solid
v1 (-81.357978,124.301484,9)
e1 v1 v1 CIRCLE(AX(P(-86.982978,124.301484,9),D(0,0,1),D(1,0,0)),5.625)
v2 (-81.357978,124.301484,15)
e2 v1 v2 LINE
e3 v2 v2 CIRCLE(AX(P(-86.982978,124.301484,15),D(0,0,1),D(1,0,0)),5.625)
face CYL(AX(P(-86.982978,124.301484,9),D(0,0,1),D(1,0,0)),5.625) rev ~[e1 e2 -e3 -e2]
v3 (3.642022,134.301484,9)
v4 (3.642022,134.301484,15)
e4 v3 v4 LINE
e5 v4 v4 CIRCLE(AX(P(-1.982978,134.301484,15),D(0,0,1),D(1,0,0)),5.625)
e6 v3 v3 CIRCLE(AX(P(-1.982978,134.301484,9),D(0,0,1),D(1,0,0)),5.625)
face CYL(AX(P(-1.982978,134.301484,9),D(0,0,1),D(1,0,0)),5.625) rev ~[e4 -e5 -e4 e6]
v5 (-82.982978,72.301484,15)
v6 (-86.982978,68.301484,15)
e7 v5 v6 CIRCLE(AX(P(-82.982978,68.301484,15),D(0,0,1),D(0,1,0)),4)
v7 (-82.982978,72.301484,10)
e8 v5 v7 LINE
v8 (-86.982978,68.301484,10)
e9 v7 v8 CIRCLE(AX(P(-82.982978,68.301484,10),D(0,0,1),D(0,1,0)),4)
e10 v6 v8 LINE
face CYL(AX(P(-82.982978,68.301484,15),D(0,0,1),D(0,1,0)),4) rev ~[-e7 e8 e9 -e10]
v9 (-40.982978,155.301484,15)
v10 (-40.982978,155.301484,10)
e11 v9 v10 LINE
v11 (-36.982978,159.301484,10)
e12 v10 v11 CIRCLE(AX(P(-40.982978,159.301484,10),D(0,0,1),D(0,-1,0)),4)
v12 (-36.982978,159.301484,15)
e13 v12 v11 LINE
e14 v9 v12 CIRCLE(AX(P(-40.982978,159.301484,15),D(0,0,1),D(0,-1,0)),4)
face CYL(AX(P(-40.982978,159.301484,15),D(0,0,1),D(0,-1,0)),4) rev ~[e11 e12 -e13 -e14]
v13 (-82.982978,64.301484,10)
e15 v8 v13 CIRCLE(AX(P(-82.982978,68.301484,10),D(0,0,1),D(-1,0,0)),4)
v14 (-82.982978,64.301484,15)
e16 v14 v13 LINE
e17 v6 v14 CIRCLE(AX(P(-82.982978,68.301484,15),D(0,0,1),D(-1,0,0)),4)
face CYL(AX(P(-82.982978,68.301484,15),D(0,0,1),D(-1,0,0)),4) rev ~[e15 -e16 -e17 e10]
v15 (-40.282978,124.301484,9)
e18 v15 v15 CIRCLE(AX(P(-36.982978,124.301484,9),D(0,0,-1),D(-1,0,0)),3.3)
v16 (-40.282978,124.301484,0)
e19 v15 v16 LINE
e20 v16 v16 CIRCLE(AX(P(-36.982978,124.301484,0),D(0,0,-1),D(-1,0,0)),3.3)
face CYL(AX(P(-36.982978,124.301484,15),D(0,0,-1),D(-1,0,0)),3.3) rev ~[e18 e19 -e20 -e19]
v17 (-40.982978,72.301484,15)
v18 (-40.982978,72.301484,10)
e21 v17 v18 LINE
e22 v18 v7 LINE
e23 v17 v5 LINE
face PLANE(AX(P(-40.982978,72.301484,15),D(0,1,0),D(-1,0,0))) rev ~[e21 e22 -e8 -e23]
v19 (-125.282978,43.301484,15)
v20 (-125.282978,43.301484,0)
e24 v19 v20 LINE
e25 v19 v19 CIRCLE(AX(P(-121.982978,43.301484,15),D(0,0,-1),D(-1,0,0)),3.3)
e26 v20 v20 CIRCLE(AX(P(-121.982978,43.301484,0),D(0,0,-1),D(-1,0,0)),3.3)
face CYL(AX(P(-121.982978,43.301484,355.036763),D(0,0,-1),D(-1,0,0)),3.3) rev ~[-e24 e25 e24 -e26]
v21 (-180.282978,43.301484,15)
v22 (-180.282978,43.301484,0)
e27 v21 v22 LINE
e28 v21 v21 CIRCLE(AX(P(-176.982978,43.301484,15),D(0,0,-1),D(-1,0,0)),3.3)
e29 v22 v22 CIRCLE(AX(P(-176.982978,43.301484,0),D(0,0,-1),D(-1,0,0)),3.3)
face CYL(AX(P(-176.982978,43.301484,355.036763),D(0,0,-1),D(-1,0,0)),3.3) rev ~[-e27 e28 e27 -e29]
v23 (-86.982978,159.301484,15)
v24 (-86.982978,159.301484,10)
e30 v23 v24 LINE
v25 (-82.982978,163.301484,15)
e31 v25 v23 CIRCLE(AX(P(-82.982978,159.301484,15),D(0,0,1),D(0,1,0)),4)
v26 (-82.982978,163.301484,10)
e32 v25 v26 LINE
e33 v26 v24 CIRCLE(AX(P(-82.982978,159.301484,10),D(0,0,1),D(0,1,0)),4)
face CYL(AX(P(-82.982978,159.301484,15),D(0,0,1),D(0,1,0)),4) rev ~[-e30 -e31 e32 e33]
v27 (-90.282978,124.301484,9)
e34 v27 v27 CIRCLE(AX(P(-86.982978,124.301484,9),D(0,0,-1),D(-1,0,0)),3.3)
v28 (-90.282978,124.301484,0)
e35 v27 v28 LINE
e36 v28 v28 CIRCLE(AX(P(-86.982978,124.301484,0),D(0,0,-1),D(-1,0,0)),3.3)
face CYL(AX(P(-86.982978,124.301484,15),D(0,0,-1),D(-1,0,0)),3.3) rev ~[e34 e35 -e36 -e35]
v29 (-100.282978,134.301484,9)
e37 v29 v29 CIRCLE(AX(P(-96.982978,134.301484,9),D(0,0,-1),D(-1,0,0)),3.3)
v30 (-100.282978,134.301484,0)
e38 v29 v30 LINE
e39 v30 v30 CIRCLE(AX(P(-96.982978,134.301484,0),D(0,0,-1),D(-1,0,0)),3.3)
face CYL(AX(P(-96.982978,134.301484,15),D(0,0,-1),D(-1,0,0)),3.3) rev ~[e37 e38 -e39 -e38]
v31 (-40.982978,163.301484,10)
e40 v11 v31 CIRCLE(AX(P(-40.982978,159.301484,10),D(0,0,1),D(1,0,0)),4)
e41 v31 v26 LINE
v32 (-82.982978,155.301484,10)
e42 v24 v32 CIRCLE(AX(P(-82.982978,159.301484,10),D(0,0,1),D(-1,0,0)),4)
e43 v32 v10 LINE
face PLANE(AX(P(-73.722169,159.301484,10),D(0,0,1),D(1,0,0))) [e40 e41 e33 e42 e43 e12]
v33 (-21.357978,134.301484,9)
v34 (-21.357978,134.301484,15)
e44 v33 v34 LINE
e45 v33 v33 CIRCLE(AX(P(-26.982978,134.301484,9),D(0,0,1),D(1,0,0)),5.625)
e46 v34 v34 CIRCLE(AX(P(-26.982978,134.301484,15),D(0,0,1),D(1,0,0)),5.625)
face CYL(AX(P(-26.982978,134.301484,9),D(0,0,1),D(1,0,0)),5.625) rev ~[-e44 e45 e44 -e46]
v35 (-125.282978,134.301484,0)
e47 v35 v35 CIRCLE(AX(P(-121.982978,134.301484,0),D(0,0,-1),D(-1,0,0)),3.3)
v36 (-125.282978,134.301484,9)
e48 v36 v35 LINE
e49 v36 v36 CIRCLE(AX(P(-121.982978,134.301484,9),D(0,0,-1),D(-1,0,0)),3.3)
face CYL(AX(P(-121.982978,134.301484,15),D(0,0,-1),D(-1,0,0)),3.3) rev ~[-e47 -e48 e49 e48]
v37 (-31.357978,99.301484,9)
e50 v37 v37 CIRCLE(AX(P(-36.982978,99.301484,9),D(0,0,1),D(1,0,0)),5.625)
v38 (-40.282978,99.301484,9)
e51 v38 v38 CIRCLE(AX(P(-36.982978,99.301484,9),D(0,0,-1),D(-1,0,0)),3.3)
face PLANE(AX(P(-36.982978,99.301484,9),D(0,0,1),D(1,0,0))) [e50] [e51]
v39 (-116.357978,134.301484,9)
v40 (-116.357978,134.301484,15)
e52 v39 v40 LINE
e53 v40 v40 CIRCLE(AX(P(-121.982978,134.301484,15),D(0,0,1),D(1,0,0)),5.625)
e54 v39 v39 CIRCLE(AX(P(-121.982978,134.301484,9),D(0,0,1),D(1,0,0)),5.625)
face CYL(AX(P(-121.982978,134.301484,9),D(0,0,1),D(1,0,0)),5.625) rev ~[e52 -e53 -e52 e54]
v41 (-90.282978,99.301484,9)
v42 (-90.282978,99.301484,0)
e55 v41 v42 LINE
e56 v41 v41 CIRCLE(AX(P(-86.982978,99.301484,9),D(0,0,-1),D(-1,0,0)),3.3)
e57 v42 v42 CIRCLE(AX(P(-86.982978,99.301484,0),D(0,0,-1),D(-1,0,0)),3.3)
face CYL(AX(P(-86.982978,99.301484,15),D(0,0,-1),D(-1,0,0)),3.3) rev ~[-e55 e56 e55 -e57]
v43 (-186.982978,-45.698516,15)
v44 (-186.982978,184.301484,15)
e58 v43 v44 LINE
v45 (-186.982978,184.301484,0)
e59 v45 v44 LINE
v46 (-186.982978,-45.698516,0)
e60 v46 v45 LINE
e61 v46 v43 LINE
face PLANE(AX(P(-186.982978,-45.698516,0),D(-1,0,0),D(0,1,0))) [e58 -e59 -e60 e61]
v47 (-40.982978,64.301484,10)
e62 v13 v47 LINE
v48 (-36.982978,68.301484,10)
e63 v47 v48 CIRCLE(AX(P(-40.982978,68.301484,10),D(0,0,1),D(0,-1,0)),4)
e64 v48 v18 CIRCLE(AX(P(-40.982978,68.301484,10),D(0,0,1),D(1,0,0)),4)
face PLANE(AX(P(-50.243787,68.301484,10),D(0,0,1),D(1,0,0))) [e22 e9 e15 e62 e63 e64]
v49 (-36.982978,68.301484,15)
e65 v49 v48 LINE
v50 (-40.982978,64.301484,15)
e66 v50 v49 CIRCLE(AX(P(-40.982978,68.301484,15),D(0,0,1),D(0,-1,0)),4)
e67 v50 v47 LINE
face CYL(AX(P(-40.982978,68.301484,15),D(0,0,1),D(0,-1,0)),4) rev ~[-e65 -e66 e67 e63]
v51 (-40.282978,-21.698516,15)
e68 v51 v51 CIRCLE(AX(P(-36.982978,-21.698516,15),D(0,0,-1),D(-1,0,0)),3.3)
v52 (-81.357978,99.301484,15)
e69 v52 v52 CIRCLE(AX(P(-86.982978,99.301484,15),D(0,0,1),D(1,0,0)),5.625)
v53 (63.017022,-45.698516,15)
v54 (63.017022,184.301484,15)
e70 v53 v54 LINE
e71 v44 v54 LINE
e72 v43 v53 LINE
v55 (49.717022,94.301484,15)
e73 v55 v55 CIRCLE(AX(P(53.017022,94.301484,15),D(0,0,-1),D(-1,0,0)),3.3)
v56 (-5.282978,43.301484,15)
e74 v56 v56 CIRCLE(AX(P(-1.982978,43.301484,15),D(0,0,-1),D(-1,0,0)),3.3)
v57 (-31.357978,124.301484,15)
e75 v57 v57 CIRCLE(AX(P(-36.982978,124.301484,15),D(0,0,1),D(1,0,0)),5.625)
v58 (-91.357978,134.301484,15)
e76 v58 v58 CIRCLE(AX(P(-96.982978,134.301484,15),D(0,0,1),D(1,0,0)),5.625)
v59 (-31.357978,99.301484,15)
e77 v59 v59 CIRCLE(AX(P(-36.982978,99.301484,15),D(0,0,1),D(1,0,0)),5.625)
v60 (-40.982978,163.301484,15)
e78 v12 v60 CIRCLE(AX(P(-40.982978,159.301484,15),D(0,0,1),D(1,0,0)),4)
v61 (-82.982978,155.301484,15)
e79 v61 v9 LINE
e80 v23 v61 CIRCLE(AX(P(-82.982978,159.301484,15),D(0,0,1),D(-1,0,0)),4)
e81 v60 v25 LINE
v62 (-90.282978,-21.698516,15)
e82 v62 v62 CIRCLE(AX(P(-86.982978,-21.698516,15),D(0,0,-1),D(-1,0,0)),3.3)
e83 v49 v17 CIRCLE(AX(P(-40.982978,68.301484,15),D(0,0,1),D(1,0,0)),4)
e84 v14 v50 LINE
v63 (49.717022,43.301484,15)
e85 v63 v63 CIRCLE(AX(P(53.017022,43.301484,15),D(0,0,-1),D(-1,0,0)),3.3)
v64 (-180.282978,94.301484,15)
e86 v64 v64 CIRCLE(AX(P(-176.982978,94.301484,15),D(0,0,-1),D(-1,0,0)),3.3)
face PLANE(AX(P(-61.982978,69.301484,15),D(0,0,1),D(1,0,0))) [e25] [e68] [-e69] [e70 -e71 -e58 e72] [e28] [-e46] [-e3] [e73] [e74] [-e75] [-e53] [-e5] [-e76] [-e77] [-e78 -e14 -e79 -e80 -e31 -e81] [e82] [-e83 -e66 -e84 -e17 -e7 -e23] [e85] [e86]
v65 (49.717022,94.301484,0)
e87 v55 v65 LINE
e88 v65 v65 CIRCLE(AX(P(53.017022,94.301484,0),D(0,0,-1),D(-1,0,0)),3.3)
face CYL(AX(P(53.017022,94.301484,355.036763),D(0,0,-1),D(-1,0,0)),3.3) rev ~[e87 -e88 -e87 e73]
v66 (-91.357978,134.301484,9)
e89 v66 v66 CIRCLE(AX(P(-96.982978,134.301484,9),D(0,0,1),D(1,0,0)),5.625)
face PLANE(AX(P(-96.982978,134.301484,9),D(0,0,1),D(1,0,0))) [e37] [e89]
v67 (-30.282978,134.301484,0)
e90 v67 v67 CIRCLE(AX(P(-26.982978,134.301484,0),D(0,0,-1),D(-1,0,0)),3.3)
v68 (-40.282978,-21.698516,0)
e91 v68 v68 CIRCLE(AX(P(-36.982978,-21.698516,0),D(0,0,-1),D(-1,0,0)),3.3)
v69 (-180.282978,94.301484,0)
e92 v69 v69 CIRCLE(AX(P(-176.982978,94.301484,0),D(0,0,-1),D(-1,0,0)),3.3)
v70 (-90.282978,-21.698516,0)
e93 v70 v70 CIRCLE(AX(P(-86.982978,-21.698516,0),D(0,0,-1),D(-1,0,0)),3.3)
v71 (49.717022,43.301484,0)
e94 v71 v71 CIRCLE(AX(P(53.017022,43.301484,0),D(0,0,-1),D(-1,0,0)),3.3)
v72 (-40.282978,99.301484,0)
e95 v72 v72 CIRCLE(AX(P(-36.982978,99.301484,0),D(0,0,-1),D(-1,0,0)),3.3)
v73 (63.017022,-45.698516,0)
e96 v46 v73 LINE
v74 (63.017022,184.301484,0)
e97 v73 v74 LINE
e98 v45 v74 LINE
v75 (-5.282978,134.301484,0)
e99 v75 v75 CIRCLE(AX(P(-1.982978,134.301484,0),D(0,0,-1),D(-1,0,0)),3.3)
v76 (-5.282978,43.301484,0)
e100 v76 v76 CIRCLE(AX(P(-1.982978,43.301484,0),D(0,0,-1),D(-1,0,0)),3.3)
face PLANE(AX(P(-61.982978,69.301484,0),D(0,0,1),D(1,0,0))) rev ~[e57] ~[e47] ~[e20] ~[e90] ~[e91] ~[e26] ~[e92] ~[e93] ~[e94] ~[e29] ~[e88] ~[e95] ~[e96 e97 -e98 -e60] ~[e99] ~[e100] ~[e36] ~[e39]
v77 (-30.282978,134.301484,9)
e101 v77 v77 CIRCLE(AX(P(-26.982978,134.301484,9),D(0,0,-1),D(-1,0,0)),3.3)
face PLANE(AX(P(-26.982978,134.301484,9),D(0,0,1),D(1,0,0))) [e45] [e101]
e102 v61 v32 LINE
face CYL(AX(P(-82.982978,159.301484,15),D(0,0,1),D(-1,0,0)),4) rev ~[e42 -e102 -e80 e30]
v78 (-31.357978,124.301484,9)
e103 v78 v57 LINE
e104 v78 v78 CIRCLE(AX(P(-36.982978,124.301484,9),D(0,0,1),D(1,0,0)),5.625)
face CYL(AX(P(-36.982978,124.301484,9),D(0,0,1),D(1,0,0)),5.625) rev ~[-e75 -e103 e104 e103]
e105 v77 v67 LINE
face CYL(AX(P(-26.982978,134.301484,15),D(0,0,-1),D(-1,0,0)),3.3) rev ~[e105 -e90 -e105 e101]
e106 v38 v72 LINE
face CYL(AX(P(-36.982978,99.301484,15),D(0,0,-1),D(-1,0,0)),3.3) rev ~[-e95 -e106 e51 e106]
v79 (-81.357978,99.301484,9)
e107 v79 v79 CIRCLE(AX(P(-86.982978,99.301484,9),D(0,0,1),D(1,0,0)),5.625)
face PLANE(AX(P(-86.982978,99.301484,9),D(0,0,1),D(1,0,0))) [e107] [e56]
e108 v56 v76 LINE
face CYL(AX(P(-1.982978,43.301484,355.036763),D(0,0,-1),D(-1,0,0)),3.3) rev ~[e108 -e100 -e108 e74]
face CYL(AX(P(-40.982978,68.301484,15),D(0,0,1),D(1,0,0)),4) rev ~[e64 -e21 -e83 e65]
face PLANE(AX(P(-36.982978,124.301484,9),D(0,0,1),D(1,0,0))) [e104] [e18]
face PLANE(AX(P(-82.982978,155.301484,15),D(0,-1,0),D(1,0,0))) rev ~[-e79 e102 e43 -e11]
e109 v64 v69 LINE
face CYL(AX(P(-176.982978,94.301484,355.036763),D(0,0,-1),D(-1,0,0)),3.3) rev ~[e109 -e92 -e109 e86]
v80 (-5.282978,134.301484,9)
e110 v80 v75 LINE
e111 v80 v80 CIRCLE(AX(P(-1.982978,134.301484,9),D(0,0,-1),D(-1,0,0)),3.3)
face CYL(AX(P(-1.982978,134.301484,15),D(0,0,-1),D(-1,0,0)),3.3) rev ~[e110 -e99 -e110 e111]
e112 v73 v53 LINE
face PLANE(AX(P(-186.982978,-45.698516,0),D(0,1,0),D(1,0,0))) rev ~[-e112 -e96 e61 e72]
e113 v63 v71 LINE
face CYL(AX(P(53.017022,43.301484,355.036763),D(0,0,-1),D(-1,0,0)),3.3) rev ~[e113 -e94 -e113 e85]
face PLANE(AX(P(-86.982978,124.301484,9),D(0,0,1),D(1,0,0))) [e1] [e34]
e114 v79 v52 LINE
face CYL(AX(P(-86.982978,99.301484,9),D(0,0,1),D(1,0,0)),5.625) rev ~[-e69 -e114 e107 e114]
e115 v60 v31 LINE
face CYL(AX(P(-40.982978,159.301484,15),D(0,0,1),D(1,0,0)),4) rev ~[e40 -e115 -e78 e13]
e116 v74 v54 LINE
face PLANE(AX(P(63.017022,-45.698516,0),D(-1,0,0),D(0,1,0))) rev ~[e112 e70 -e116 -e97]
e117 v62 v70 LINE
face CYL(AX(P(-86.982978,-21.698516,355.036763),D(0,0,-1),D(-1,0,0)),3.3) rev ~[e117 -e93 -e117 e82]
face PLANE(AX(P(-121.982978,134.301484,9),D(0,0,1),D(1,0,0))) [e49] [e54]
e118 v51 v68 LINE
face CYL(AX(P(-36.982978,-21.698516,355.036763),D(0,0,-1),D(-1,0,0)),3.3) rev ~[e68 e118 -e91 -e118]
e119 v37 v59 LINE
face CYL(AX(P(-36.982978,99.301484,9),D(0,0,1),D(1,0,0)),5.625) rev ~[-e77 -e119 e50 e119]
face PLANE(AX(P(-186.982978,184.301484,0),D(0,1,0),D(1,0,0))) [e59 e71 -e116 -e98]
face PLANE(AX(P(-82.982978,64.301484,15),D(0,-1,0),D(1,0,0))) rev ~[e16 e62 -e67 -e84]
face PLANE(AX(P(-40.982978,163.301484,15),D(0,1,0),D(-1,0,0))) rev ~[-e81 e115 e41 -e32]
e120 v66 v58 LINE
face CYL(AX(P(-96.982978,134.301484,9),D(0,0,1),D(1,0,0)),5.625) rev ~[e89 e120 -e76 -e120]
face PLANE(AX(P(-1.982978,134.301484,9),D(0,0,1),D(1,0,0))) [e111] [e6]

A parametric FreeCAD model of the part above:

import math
import FreeCAD as App
import Part
import Sketcher

V = App.Vector


def add_polygon(sketch, points):
    """Adds a closed chain of lines whose ends are joined by coincident constraints."""
    first, n = sketch.GeometryCount, len(points)
    for a, b in zip(points, points[1:] + points[:1]):
        sketch.addGeometry(Part.LineSegment(App.Vector(*a, 0), App.Vector(*b, 0)), False)
    for i in range(n):
        sketch.addConstraint(Sketcher.Constraint("Coincident", first + i, 2, first + (i + 1) % n, 1))

doc = App.newDocument("Part")
body = doc.addObject("PartDesign::Body", "Body")

# Sketch on XY plane
sketch1 = body.newObject("Sketcher::SketchObject", "Sketch")
sketch1.AttachmentSupport = (doc.getObject("XY_Plane"), [""])
sketch1.MapMode = "FlatFace"
add_polygon(sketch1, [(-187, 184), (-187, -46), (63, -46), (63, 184)])  # lines 0-3
sketch1.addConstraint([
    Sketcher.Constraint("Vertical", 0),
    Sketcher.Constraint("Horizontal", 1),
    Sketcher.Constraint("Vertical", 2),
    Sketcher.Constraint("Horizontal", 3),
    Sketcher.Constraint("DistanceX", 1, 1, 1, 2, 250.0),
    Sketcher.Constraint("DistanceY", 0, 2, 0, 1, 230.0),
    Sketcher.Constraint("DistanceX", 0, 2, -1, 1, 186.982978),
    Sketcher.Constraint("DistanceY", 0, 2, -1, 1, 45.698516),
])
pad1 = body.newObject("PartDesign::Pad", "Pad")
pad1.Profile = sketch1
pad1.Length = 15

# Sketch on XY plane
sketch2 = body.newObject("Sketcher::SketchObject", "Sketch001")
sketch2.AttachmentSupport = (doc.getObject("XY_Plane"), [""])
sketch2.MapMode = "FlatFace"
sketch2.AttachmentOffset = App.Placement(V(0, 0, 15), App.Rotation())
sketch2.addGeometry([
    Part.Circle(V(-122, 134.3, 0), V(0, 0, 1), 3.3),  # 0
    Part.Circle(V(-97, 134.3, 0), V(0, 0, 1), 3.3),  # 1
    Part.Circle(V(-87, 124.3, 0), V(0, 0, 1), 3.3),  # 2
    Part.Circle(V(-87, 99.3, 0), V(0, 0, 1), 3.3),  # 3
    Part.Circle(V(-37, 99.3, 0), V(0, 0, 1), 3.3),  # 4
    Part.Circle(V(-37, 124.3, 0), V(0, 0, 1), 3.3),  # 5
    Part.Circle(V(-27, 134.3, 0), V(0, 0, 1), 3.3),  # 6
    Part.Circle(V(-2, 134.3, 0), V(0, 0, 1), 3.3),  # 7
], False)
sketch2.addConstraint([
    Sketcher.Constraint("Equal", 0, 1),
    Sketcher.Constraint("Equal", 1, 2),
    Sketcher.Constraint("Equal", 2, 3),
    Sketcher.Constraint("Equal", 3, 4),
    Sketcher.Constraint("Equal", 4, 5),
    Sketcher.Constraint("Equal", 5, 6),
    Sketcher.Constraint("Equal", 6, 7),
    Sketcher.Constraint("Horizontal", 0, 3, 1, 3),
    Sketcher.Constraint("Horizontal", 3, 3, 4, 3),
    Sketcher.Constraint("Horizontal", 2, 3, 5, 3),
    Sketcher.Constraint("Horizontal", 1, 3, 6, 3),
    Sketcher.Constraint("Horizontal", 6, 3, 7, 3),
    Sketcher.Constraint("Vertical", 2, 3, 3, 3),
    Sketcher.Constraint("Vertical", 4, 3, 5, 3),
    Sketcher.Constraint("Diameter", 0, 6.6),
    Sketcher.Constraint("DistanceX", 0, 3, 1, 3, 25.0),
    Sketcher.Constraint("DistanceX", 1, 3, 2, 3, 10.0),
    Sketcher.Constraint("DistanceY", 2, 3, 1, 3, 10.0),
    Sketcher.Constraint("DistanceY", 3, 3, 2, 3, 25.0),
    Sketcher.Constraint("DistanceX", 3, 3, 4, 3, 50.0),
    Sketcher.Constraint("DistanceX", 5, 3, 6, 3, 10.0),
    Sketcher.Constraint("DistanceX", 6, 3, 7, 3, 25.0),
    Sketcher.Constraint("DistanceX", 0, 3, -1, 1, 121.982978),
    Sketcher.Constraint("DistanceY", -1, 1, 0, 3, 134.301484),
])
doc.recompute()
hole = body.newObject("PartDesign::Hole", "Hole")
hole.Profile = sketch2
hole.ThreadType = "None"
hole.Diameter = 6.6
hole.DepthType = "ThroughAll"
hole.HoleCutType = "Counterbore"
hole.HoleCutDiameter = 11.25
hole.HoleCutDepth = 6

# Sketch on XY plane
sketch3 = body.newObject("Sketcher::SketchObject", "Sketch002")
sketch3.AttachmentSupport = (doc.getObject("XY_Plane"), [""])
sketch3.MapMode = "FlatFace"
sketch3.AttachmentOffset = App.Placement(V(0, 0, 15), App.Rotation())
sketch3.addGeometry([
    Part.LineSegment(V(-41, 72.3, 0), V(-83, 72.3, 0)),  # 0
    Part.ArcOfCircle(Part.Circle(V(-83, 68.3, 0), V(0, 0, 1), 4), math.radians(90), math.radians(180)),  # 1
    Part.ArcOfCircle(Part.Circle(V(-83, 68.3, 0), V(0, 0, 1), 4), math.radians(180), math.radians(270)),  # 2
    Part.LineSegment(V(-83, 64.3, 0), V(-41, 64.3, 0)),  # 3
    Part.ArcOfCircle(Part.Circle(V(-41, 68.3, 0), V(0, 0, 1), 4), math.radians(-90), math.radians(0)),  # 4
    Part.ArcOfCircle(Part.Circle(V(-41, 68.3, 0), V(0, 0, 1), 4), math.radians(0), math.radians(90)),  # 5
], False)
sketch3.addConstraint([
    Sketcher.Constraint("Tangent", 0, 2, 1, 1),
    Sketcher.Constraint("Tangent", 1, 2, 2, 1),
    Sketcher.Constraint("Tangent", 2, 2, 3, 1),
    Sketcher.Constraint("Tangent", 3, 2, 4, 1),
    Sketcher.Constraint("Tangent", 4, 2, 5, 1),
    Sketcher.Constraint("Tangent", 5, 2, 0, 1),
    Sketcher.Constraint("Horizontal", 0),
    Sketcher.Constraint("Horizontal", 3),
    Sketcher.Constraint("Equal", 1, 2),
    Sketcher.Constraint("Equal", 2, 4),
    Sketcher.Constraint("Horizontal", 5, 3, 1, 2),
    Sketcher.Constraint("Horizontal", 1, 2, 4, 2),
    Sketcher.Constraint("Radius", 1, 4.0),
    Sketcher.Constraint("DistanceX", 0, 2, 0, 1, 42.0),
    Sketcher.Constraint("DistanceX", 1, 3, -1, 1, 82.982978),
    Sketcher.Constraint("DistanceY", -1, 1, 1, 3, 68.301484),
])
pocket1 = body.newObject("PartDesign::Pocket", "Pocket")
pocket1.Profile = sketch3
pocket1.Length = 5

# Sketch on XY plane
sketch4 = body.newObject("Sketcher::SketchObject", "Sketch003")
sketch4.AttachmentSupport = (doc.getObject("XY_Plane"), [""])
sketch4.MapMode = "FlatFace"
sketch4.AttachmentOffset = App.Placement(V(0, 0, 15), App.Rotation())
sketch4.addGeometry([
    Part.Circle(V(53, 43.3, 0), V(0, 0, 1), 3.3),  # 0
    Part.Circle(V(-2, 43.3, 0), V(0, 0, 1), 3.3),  # 1
    Part.Circle(V(53, 94.3, 0), V(0, 0, 1), 3.3),  # 2
    Part.Circle(V(-37, -21.7, 0), V(0, 0, 1), 3.3),  # 3
    Part.Circle(V(-87, -21.7, 0), V(0, 0, 1), 3.3),  # 4
    Part.Circle(V(-122, 43.3, 0), V(0, 0, 1), 3.3),  # 5
    Part.Circle(V(-177, 43.3, 0), V(0, 0, 1), 3.3),  # 6
    Part.Circle(V(-177, 94.3, 0), V(0, 0, 1), 3.3),  # 7
], False)
sketch4.addConstraint([
    Sketcher.Constraint("Equal", 0, 1),
    Sketcher.Constraint("Equal", 1, 2),
    Sketcher.Constraint("Equal", 2, 3),
    Sketcher.Constraint("Equal", 3, 4),
    Sketcher.Constraint("Equal", 4, 5),
    Sketcher.Constraint("Equal", 5, 6),
    Sketcher.Constraint("Equal", 6, 7),
    Sketcher.Constraint("Horizontal", 0, 3, 1, 3),
    Sketcher.Constraint("Horizontal", 3, 3, 4, 3),
    Sketcher.Constraint("Horizontal", 1, 3, 5, 3),
    Sketcher.Constraint("Horizontal", 5, 3, 6, 3),
    Sketcher.Constraint("Horizontal", 2, 3, 7, 3),
    Sketcher.Constraint("Vertical", 0, 3, 2, 3),
    Sketcher.Constraint("Vertical", 6, 3, 7, 3),
    Sketcher.Constraint("Diameter", 0, 6.6),
    Sketcher.Constraint("DistanceX", 1, 3, 0, 3, 55.0),
    Sketcher.Constraint("DistanceY", 0, 3, 2, 3, 51.0),
    Sketcher.Constraint("DistanceX", 3, 3, 1, 3, 35.0),
    Sketcher.Constraint("DistanceY", 3, 3, 1, 3, 65.0),
    Sketcher.Constraint("DistanceX", 4, 3, 3, 3, 50.0),
    Sketcher.Constraint("DistanceX", 5, 3, 4, 3, 35.0),
    Sketcher.Constraint("DistanceX", 6, 3, 5, 3, 55.0),
    Sketcher.Constraint("DistanceX", -1, 1, 0, 3, 53.017022),
    Sketcher.Constraint("DistanceY", -1, 1, 0, 3, 43.301484),
])
doc.recompute()
hole2 = body.newObject("PartDesign::Hole", "Hole001")
hole2.Profile = sketch4
hole2.ThreadType = "None"
hole2.Diameter = 6.6
hole2.DepthType = "ThroughAll"

# Sketch on XY plane
sketch5 = body.newObject("Sketcher::SketchObject", "Sketch004")
sketch5.AttachmentSupport = (doc.getObject("XY_Plane"), [""])
sketch5.MapMode = "FlatFace"
sketch5.AttachmentOffset = App.Placement(V(0, 0, 15), App.Rotation())
sketch5.addGeometry([
    Part.ArcOfCircle(Part.Circle(V(-83, 159.3, 0), V(0, 0, 1), 4), math.radians(90), math.radians(180)),  # 0
    Part.ArcOfCircle(Part.Circle(V(-83, 159.3, 0), V(0, 0, 1), 4), math.radians(180), math.radians(270)),  # 1
    Part.LineSegment(V(-83, 155.3, 0), V(-41, 155.3, 0)),  # 2
    Part.ArcOfCircle(Part.Circle(V(-41, 159.3, 0), V(0, 0, 1), 4), math.radians(-90), math.radians(0)),  # 3
    Part.ArcOfCircle(Part.Circle(V(-41, 159.3, 0), V(0, 0, 1), 4), math.radians(0), math.radians(90)),  # 4
    Part.LineSegment(V(-41, 163.3, 0), V(-83, 163.3, 0)),  # 5
], False)
sketch5.addConstraint([
    Sketcher.Constraint("Tangent", 0, 2, 1, 1),
    Sketcher.Constraint("Tangent", 1, 2, 2, 1),
    Sketcher.Constraint("Tangent", 2, 2, 3, 1),
    Sketcher.Constraint("Tangent", 3, 2, 4, 1),
    Sketcher.Constraint("Tangent", 4, 2, 5, 1),
    Sketcher.Constraint("Tangent", 5, 2, 0, 1),
    Sketcher.Constraint("Horizontal", 2),
    Sketcher.Constraint("Horizontal", 5),
    Sketcher.Constraint("Equal", 0, 1),
    Sketcher.Constraint("Equal", 1, 3),
    Sketcher.Constraint("Horizontal", 4, 3, 0, 2),
    Sketcher.Constraint("Horizontal", 0, 2, 3, 2),
    Sketcher.Constraint("Radius", 0, 4.0),
    Sketcher.Constraint("DistanceX", 2, 1, 2, 2, 42.0),
    Sketcher.Constraint("DistanceX", 0, 3, -1, 1, 82.982978),
    Sketcher.Constraint("DistanceY", -1, 1, 0, 3, 159.301484),
])
pocket2 = body.newObject("PartDesign::Pocket", "Pocket001")
pocket2.Profile = sketch5
pocket2.Length = 5

doc.recompute()
